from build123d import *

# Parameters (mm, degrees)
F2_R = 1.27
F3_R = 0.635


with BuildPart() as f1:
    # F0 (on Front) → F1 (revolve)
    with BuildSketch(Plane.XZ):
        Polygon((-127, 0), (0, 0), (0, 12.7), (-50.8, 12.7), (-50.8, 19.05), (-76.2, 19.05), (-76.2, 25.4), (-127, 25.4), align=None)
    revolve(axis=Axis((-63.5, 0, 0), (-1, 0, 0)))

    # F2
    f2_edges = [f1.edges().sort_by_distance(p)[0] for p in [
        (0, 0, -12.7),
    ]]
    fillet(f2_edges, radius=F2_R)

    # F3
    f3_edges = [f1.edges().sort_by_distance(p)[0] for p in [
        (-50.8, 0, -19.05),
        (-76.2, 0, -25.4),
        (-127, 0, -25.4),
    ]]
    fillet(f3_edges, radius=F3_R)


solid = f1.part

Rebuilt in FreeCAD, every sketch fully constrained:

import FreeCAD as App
import Part
import Sketcher
from FreeCAD import Vector
Q = App.Units.Quantity


def edges_at(feature, points):
    """Names of the edges that pass closest to the given points."""
    edges = feature.Shape.Edges
    near = lambda p: min(range(len(edges)), key=lambda i: edges[i].distToShape(Part.Vertex(*p))[0])
    return sorted({f"Edge{near(p) + 1}" for p in points})


def add_polygon(sketch, points):
    """Adds a closed chain of lines whose ends are joined by coincident constraints."""
    first, n = sketch.GeometryCount, len(points)
    for a, b in zip(points, points[1:] + points[:1]):
        sketch.addGeometry(Part.LineSegment(App.Vector(*a, 0), App.Vector(*b, 0)), False)
    for i in range(n):
        sketch.addConstraint(Sketcher.Constraint("Coincident", first + i, 2, first + (i + 1) % n, 1))

doc = App.newDocument("Part")
body = doc.addObject("PartDesign::Body", "Body")

sketch1 = body.newObject("Sketcher::SketchObject", "Sketch")
sketch1.AttachmentSupport = (doc.getObject("XZ_Plane"), [""])
sketch1.MapMode = "FlatFace"
add_polygon(sketch1, [(-127, 0), (0, 0), (0, 13), (-51, 13), (-51, 19), (-76, 19), (-76, 25), (-127, 25)])
sketch1.addConstraint([
    Sketcher.Constraint("Horizontal", 0),
    Sketcher.Constraint("Vertical", 1),
    Sketcher.Constraint("Horizontal", 2),
    Sketcher.Constraint("Vertical", 3),
    Sketcher.Constraint("Horizontal", 4),
    Sketcher.Constraint("Vertical", 5),
    Sketcher.Constraint("Horizontal", 6),
    Sketcher.Constraint("Vertical", 7),
    Sketcher.Constraint("Coincident", 0, 2, -1, 1),
    Sketcher.Constraint("Equal", 2, 6),
    Sketcher.Constraint("Equal", 3, 5),
    Sketcher.Constraint("Equal", 4, 7),
    Sketcher.Constraint("DistanceX", 0, 1, 0, 2, Q("5 in")),
    Sketcher.Constraint("DistanceX", 2, 2, 2, 1, Q("2 in")),
    Sketcher.Constraint("DistanceY", 1, 1, 1, 2, Q("0.5 in")),
])
revolution = body.newObject("PartDesign::Revolution", "Revolution")
revolution.Profile = sketch1
revolution.ReferenceAxis = (sketch1, ["H_Axis"])
revolution.Angle = 360
doc.recompute()

fillet = body.newObject("PartDesign::Fillet", "Fillet")
fillet.Base = (revolution, edges_at(revolution, [(0, 0, -12.7)]))
fillet.Radius = Q("0.05 in")
doc.recompute()

fillet2 = body.newObject("PartDesign::Fillet", "Fillet001")
fillet2.Base = (fillet, edges_at(fillet, [(-50.8, 0, -19.05), (-76.2, 0, -25.4), (-127, 0, -25.4)]))
fillet2.Radius = Q("0.025 in")

doc.recompute()
